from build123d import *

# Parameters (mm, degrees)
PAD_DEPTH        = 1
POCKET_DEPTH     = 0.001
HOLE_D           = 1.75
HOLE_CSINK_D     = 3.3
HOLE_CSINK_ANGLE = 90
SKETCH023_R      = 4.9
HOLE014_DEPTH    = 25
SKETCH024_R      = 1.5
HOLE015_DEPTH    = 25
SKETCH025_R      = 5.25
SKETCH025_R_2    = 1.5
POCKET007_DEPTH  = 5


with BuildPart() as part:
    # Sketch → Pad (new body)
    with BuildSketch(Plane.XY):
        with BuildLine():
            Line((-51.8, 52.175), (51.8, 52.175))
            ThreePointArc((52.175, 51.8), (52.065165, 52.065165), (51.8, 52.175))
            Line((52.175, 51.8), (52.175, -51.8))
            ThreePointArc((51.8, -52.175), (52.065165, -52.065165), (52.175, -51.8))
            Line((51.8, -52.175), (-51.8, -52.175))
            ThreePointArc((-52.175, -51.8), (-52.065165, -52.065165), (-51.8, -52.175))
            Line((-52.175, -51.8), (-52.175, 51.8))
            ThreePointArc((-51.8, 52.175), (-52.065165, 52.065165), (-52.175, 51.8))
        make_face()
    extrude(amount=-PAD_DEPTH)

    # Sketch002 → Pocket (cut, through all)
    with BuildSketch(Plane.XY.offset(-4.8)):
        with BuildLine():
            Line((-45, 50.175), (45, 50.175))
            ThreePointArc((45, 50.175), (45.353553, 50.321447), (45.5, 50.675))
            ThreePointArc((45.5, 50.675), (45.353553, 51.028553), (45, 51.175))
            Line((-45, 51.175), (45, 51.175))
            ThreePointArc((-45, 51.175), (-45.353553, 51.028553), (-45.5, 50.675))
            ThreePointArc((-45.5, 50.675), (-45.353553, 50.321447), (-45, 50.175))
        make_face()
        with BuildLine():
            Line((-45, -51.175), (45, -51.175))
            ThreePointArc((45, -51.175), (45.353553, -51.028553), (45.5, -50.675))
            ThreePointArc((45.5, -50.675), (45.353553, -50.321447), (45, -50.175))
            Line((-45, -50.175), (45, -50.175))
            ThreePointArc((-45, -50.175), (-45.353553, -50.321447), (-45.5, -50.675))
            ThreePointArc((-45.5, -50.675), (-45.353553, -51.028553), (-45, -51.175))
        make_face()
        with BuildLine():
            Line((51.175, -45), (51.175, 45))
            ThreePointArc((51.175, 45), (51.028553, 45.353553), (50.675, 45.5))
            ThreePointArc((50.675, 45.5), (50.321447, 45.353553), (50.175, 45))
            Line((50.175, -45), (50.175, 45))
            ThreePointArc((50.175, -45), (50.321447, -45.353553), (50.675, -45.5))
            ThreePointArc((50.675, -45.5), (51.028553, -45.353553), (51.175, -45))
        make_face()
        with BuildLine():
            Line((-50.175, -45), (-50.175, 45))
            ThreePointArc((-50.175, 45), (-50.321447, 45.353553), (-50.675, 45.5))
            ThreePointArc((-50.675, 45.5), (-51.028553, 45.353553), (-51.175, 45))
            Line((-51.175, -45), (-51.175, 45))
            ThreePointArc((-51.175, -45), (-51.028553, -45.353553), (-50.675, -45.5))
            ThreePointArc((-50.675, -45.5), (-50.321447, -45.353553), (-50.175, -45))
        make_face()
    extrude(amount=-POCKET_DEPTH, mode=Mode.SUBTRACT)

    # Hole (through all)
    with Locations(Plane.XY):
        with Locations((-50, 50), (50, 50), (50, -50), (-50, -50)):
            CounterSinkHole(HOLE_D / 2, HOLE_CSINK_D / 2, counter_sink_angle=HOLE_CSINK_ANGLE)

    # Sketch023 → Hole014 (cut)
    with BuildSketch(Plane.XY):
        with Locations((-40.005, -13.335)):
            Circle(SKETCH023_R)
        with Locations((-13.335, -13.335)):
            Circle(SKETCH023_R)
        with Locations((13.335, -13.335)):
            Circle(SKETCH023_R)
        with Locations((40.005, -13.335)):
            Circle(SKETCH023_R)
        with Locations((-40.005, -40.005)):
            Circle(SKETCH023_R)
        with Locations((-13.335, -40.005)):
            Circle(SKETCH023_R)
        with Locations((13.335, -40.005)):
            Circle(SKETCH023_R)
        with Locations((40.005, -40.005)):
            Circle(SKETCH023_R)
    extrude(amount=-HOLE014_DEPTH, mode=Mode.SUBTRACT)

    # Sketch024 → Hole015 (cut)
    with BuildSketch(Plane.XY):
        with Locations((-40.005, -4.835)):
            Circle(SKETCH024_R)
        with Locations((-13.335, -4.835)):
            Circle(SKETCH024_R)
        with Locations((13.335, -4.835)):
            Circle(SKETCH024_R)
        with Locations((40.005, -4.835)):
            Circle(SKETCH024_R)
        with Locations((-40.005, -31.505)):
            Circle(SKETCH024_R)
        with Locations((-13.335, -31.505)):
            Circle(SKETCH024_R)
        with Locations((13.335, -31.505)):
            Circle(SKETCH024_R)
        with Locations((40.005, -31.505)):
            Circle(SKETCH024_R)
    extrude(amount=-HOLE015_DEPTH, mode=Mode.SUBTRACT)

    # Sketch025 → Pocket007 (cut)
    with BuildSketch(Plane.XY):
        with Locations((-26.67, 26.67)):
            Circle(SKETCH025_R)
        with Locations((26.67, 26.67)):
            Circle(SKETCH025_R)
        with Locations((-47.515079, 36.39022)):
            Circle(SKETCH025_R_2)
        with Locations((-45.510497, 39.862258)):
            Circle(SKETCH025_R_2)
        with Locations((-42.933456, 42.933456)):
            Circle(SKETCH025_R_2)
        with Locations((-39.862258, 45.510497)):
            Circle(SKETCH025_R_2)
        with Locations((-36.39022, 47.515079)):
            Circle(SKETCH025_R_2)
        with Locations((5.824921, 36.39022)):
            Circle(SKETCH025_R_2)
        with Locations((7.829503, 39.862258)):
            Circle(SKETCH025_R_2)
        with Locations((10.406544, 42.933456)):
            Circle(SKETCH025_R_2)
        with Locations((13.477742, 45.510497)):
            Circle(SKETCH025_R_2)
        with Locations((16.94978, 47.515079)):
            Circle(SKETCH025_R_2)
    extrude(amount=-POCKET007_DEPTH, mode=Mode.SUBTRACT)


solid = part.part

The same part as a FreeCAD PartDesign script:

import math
import FreeCAD as App
import Part
import Sketcher
Q = App.Units.Quantity

doc = App.newDocument("Part")
params = doc.addObject("Spreadsheet::Sheet", "Params")
for row, (alias, value) in enumerate([
    ("sketch1_width", "103.6 mm"),
    ("pad1_length", "1 mm"),
    ("sketch2_radius", "0.500001 mm"),
    ("sketch2_width", "90 mm"),
    ("sketch3_diameter", "1.75 mm"),
    ("hole_diameter", "1.75 mm"),
    ("hole_csink_diameter", "3.3 mm"),
    ("sketch4_diameter", "9.8 mm"),
    ("pocket2_length", "25 mm"),
    ("sketch5_diameter", "3 mm"),
    ("pocket3_length", "25 mm"),
    ("sketch6_diameter", "3 mm"),
    ("sketch6_diameter2", "10.5 mm"),
    ("pocket4_length", "5 mm"),
], start=1):
    params.set(f"A{row}", alias)
    params.set(f"B{row}", "=" + value)
    params.setAlias(f"B{row}", alias)

body = doc.addObject("PartDesign::Body", "Body")

sketch1 = body.newObject("Sketcher::SketchObject", "Sketch")
sketch1.AttachmentSupport = (doc.getObject("XY_Plane"), [""])
sketch1.MapMode = "FlatFace"
sketch1.addGeometry([
    Part.LineSegment(App.Vector(51.8, 52.17, 0), App.Vector(-51.8, 52.17, 0)),
    Part.ArcOfCircle(Part.Circle(App.Vector(-51.8, 51.8, 0), App.Vector(0, 0, 1), 0.38), math.radians(90), math.radians(180)),
    Part.LineSegment(App.Vector(-52.17, 51.8, 0), App.Vector(-52.17, -51.8, 0)),
    Part.ArcOfCircle(Part.Circle(App.Vector(-51.8, -51.8, 0), App.Vector(0, 0, 1), 0.38), math.radians(-180), math.radians(-90)),
    Part.LineSegment(App.Vector(-51.8, -52.17, 0), App.Vector(51.8, -52.17, 0)),
    Part.ArcOfCircle(Part.Circle(App.Vector(51.8, -51.8, 0), App.Vector(0, 0, 1), 0.38), math.radians(-90), math.radians(0)),
    Part.LineSegment(App.Vector(52.17, -51.8, 0), App.Vector(52.17, 51.8, 0)),
    Part.ArcOfCircle(Part.Circle(App.Vector(51.8, 51.8, 0), App.Vector(0, 0, 1), 0.38), math.radians(0), math.radians(90)),
], False)
sketch1.addConstraint([
    Sketcher.Constraint("Tangent", 0, 2, 1, 1),
    Sketcher.Constraint("Tangent", 1, 2, 2, 1),
    Sketcher.Constraint("Tangent", 2, 2, 3, 1),
    Sketcher.Constraint("Tangent", 3, 2, 4, 1),
    Sketcher.Constraint("Tangent", 4, 2, 5, 1),
    Sketcher.Constraint("Tangent", 5, 2, 6, 1),
    Sketcher.Constraint("Tangent", 6, 2, 7, 1),
    Sketcher.Constraint("Tangent", 7, 2, 0, 1),
    Sketcher.Constraint("Horizontal", 0),
    Sketcher.Constraint("Vertical", 2),
    Sketcher.Constraint("Horizontal", 4),
    Sketcher.Constraint("Vertical", 6),
    Sketcher.Constraint("Equal", 1, 3),
    Sketcher.Constraint("Equal", 3, 5),
    Sketcher.Constraint("Equal", 5, 7),
    Sketcher.Constraint("Symmetric", 1, 3, 5, 3, -1, 1),
    Sketcher.Constraint("Equal", 4, 2),
    Sketcher.Constraint("DistanceX", 0, 2, 0, 1, Q("103.6 mm")),
    Sketcher.Constraint("Radius", 1, Q("0.375 mm")),
])
sketch1.setExpression("Constraints[17]", "Params.sketch1_width")
pad1 = body.newObject("PartDesign::Pad", "Pad")
pad1.Profile = sketch1
pad1.setExpression("Length", "Params.pad1_length")
pad1.Reversed = True

sketch2 = body.newObject("Sketcher::SketchObject", "Sketch001")
sketch2.AttachmentSupport = (doc.getObject("XY_Plane"), [""])
sketch2.MapMode = "FlatFace"
sketch2.AttachmentOffset = App.Placement(App.Vector(0, 0, -4.8), App.Rotation())
sketch2.addGeometry([
    Part.LineSegment(App.Vector(-45, 50.2, 0), App.Vector(45, 50.2, 0)),
    Part.ArcOfCircle(Part.Circle(App.Vector(45, 50.7, 0), App.Vector(0, 0, 1), 0.5), math.radians(-90), math.radians(0)),
    Part.ArcOfCircle(Part.Circle(App.Vector(45, 50.7, 0), App.Vector(0, 0, 1), 0.5), math.radians(0), math.radians(90)),
    Part.LineSegment(App.Vector(45, 51.2, 0), App.Vector(-45, 51.2, 0)),
    Part.ArcOfCircle(Part.Circle(App.Vector(-45, 50.7, 0), App.Vector(0, 0, 1), 0.5), math.radians(90), math.radians(180)),
    Part.ArcOfCircle(Part.Circle(App.Vector(-45, 50.7, 0), App.Vector(0, 0, 1), 0.5), math.radians(-180), math.radians(-90)),
    Part.LineSegment(App.Vector(-45, -51.2, 0), App.Vector(45, -51.2, 0)),
    Part.ArcOfCircle(Part.Circle(App.Vector(45, -50.7, 0), App.Vector(0, 0, 1), 0.5), math.radians(-90), math.radians(0)),
    Part.ArcOfCircle(Part.Circle(App.Vector(45, -50.7, 0), App.Vector(0, 0, 1), 0.5), math.radians(0), math.radians(90)),
    Part.LineSegment(App.Vector(45, -50.2, 0), App.Vector(-45, -50.2, 0)),
    Part.ArcOfCircle(Part.Circle(App.Vector(-45, -50.7, 0), App.Vector(0, 0, 1), 0.5), math.radians(90), math.radians(180)),
    Part.ArcOfCircle(Part.Circle(App.Vector(-45, -50.7, 0), App.Vector(0, 0, 1), 0.5), math.radians(-180), math.radians(-90)),
    Part.LineSegment(App.Vector(51.2, -45, 0), App.Vector(51.2, 45, 0)),
    Part.ArcOfCircle(Part.Circle(App.Vector(50.7, 45, 0), App.Vector(0, 0, 1), 0.5), math.radians(0), math.radians(90)),
    Part.ArcOfCircle(Part.Circle(App.Vector(50.7, 45, 0), App.Vector(0, 0, 1), 0.5), math.radians(90), math.radians(180)),
    Part.LineSegment(App.Vector(50.2, 45, 0), App.Vector(50.2, -45, 0)),
    Part.ArcOfCircle(Part.Circle(App.Vector(50.7, -45, 0), App.Vector(0, 0, 1), 0.5), math.radians(-180), math.radians(-90)),
    Part.ArcOfCircle(Part.Circle(App.Vector(50.7, -45, 0), App.Vector(0, 0, 1), 0.5), math.radians(-90), math.radians(0)),
    Part.LineSegment(App.Vector(-50.2, -45, 0), App.Vector(-50.2, 45, 0)),
    Part.ArcOfCircle(Part.Circle(App.Vector(-50.7, 45, 0), App.Vector(0, 0, 1), 0.5), math.radians(0), math.radians(90)),
    Part.ArcOfCircle(Part.Circle(App.Vector(-50.7, 45, 0), App.Vector(0, 0, 1), 0.5), math.radians(90), math.radians(180)),
    Part.LineSegment(App.Vector(-51.2, 45, 0), App.Vector(-51.2, -45, 0)),
    Part.ArcOfCircle(Part.Circle(App.Vector(-50.7, -45, 0), App.Vector(0, 0, 1), 0.5), math.radians(-180), math.radians(-90)),
    Part.ArcOfCircle(Part.Circle(App.Vector(-50.7, -45, 0), App.Vector(0, 0, 1), 0.5), math.radians(-90), math.radians(0)),
], False)
sketch2.addConstraint([
    Sketcher.Constraint("Coincident", 0, 2, 1, 1),
    Sketcher.Constraint("Coincident", 1, 2, 2, 1),
    Sketcher.Constraint("Coincident", 2, 2, 3, 1),
    Sketcher.Constraint("Coincident", 3, 2, 4, 1),
    Sketcher.Constraint("Coincident", 4, 2, 5, 1),
    Sketcher.Constraint("Coincident", 5, 2, 0, 1),
    Sketcher.Constraint("Coincident", 6, 2, 7, 1),
    Sketcher.Constraint("Coincident", 7, 2, 8, 1),
    Sketcher.Constraint("Coincident", 8, 2, 9, 1),
    Sketcher.Constraint("Coincident", 9, 2, 10, 1),
    Sketcher.Constraint("Coincident", 10, 2, 11, 1),
    Sketcher.Constraint("Coincident", 11, 2, 6, 1),
    Sketcher.Constraint("Coincident", 12, 2, 13, 1),
    Sketcher.Constraint("Coincident", 13, 2, 14, 1),
    Sketcher.Constraint("Coincident", 14, 2, 15, 1),
    Sketcher.Constraint("Coincident", 15, 2, 16, 1),
    Sketcher.Constraint("Coincident", 16, 2, 17, 1),
    Sketcher.Constraint("Coincident", 17, 2, 12, 1),
    Sketcher.Constraint("Coincident", 18, 2, 19, 1),
    Sketcher.Constraint("Coincident", 19, 2, 20, 1),
    Sketcher.Constraint("Coincident", 20, 2, 21, 1),
    Sketcher.Constraint("Coincident", 21, 2, 22, 1),
    Sketcher.Constraint("Coincident", 22, 2, 23, 1),
    Sketcher.Constraint("Coincident", 23, 2, 18, 1),
    Sketcher.Constraint("Horizontal", 0),
    Sketcher.Constraint("Horizontal", 3),
    Sketcher.Constraint("Horizontal", 6),
    Sketcher.Constraint("Horizontal", 9),
    Sketcher.Constraint("Vertical", 12),
    Sketcher.Constraint("Vertical", 15),
    Sketcher.Constraint("Vertical", 18),
    Sketcher.Constraint("Vertical", 21),
    Sketcher.Constraint("Coincident", 2, 3, 1, 3),
    Sketcher.Constraint("Coincident", 5, 3, 4, 3),
    Sketcher.Constraint("Coincident", 8, 3, 7, 3),
    Sketcher.Constraint("Coincident", 11, 3, 10, 3),
    Sketcher.Constraint("Coincident", 14, 3, 13, 3),
    Sketcher.Constraint("Coincident", 17, 3, 16, 3),
    Sketcher.Constraint("Coincident", 20, 3, 19, 3),
    Sketcher.Constraint("Coincident", 23, 3, 22, 3),
    Sketcher.Constraint("Equal", 5, 7),
    Sketcher.Constraint("Equal", 11, 13),
    Sketcher.Constraint("Equal", 17, 19),
    Sketcher.Constraint("Symmetric", 4, 3, 7, 3, -1, 1),
    Sketcher.Constraint("Symmetric", 16, 3, 19, 3, -1, 1),
    Sketcher.Constraint("Symmetric", 1, 2, 10, 2, -1, 1),
    Sketcher.Constraint("Symmetric", 13, 2, 22, 2, -1, 1),
    Sketcher.Constraint("Symmetric", 1, 2, 4, 2, -2),
    Sketcher.Constraint("Symmetric", 13, 2, 19, 2, -2),
    Sketcher.Constraint("Horizontal", 5, 3, 1, 2),
    Sketcher.Constraint("Horizontal", 11, 3, 7, 2),
    Sketcher.Constraint("Horizontal", 20, 3, 12, 2),
    Sketcher.Constraint("Horizontal", 12, 2, 14, 2),
    Sketcher.Constraint("Horizontal", 23, 3, 15, 2),
    Sketcher.Constraint("Horizontal", 15, 2, 17, 2),
    Sketcher.Constraint("Horizontal", 14, 2, 18, 2),
    Sketcher.Constraint("Horizontal", 18, 2, 20, 2),
    Sketcher.Constraint("Horizontal", 17, 2, 21, 2),
    Sketcher.Constraint("Horizontal", 21, 2, 23, 2),
    Sketcher.Constraint("Vertical", 8, 3, 0, 2),
    Sketcher.Constraint("Vertical", 0, 2, 2, 2),
    Sketcher.Constraint("Vertical", 11, 3, 3, 2),
    Sketcher.Constraint("Vertical", 3, 2, 5, 2),
    Sketcher.Constraint("Vertical", 2, 2, 6, 2),
    Sketcher.Constraint("Vertical", 6, 2, 8, 2),
    Sketcher.Constraint("Vertical", 5, 2, 9, 2),
    Sketcher.Constraint("Vertical", 9, 2, 11, 2),
    Sketcher.Constraint("Vertical", 17, 3, 13, 2),
    Sketcher.Constraint("Vertical", 13, 2, 16, 2),
    Sketcher.Constraint("Equal", 9, 12),
    Sketcher.Constraint("Radius", 1, Q("0.500001 mm")),
    Sketcher.Constraint("DistanceX", 0, 1, 0, 2, Q("90 mm")),
    Sketcher.Constraint("DistanceY", 7, 3, 1, 3, Q("101.35 mm")),
    Sketcher.Constraint("DistanceX", -1, 1, 13, 3, Q("50.674999 mm")),
])
sketch2.setExpression("Constraints[70]", "Params.sketch2_radius")
sketch2.setExpression("Constraints[71]", "Params.sketch2_width")
pocket1 = body.newObject("PartDesign::Pocket", "Pocket")
pocket1.Profile = sketch2
pocket1.Type = "ThroughAll"

sketch3 = body.newObject("Sketcher::SketchObject", "Sketch002")
sketch3.AttachmentSupport = (doc.getObject("XY_Plane"), [""])
sketch3.MapMode = "FlatFace"
sketch3.addGeometry([
    Part.Circle(App.Vector(-50, 50, 0), App.Vector(0, 0, 1), 0.9),
    Part.Circle(App.Vector(50, 50, 0), App.Vector(0, 0, 1), 0.9),
    Part.Circle(App.Vector(50, -50, 0), App.Vector(0, 0, 1), 0.9),
    Part.Circle(App.Vector(-50, -50, 0), App.Vector(0, 0, 1), 0.9),
], False)
sketch3.addConstraint([
    Sketcher.Constraint("Equal", 0, 1),
    Sketcher.Constraint("Equal", 1, 2),
    Sketcher.Constraint("Equal", 2, 3),
    Sketcher.Constraint("Symmetric", 0, 3, 2, 3, -1, 1),
    Sketcher.Constraint("Symmetric", 1, 3, 3, 3, -1, 1),
    Sketcher.Constraint("Symmetric", 0, 3, 1, 3, -2),
    Sketcher.Constraint("Diameter", 0, Q("1.75 mm")),
    Sketcher.Constraint("DistanceX", 0, 3, -1, 1, Q("50 mm")),
    Sketcher.Constraint("DistanceY", -1, 1, 0, 3, Q("50 mm")),
])
sketch3.setExpression("Constraints[6]", "Params.sketch3_diameter")
doc.recompute()
hole = body.newObject("PartDesign::Hole", "Hole")
hole.Profile = sketch3
hole.ThreadType = "None"
hole.setExpression("Diameter", "Params.hole_diameter")
hole.DepthType = "ThroughAll"
hole.HoleCutType = "Countersink"
hole.setExpression("HoleCutDiameter", "Params.hole_csink_diameter")
hole.HoleCutCountersinkAngle = 90

sketch4 = body.newObject("Sketcher::SketchObject", "Sketch003")
sketch4.AttachmentSupport = (doc.getObject("XY_Plane"), [""])
sketch4.MapMode = "FlatFace"
sketch4.addGeometry([
    Part.Circle(App.Vector(-40, -13.3, 0), App.Vector(0, 0, 1), 4.9),
    Part.Circle(App.Vector(-13.3, -13.3, 0), App.Vector(0, 0, 1), 4.9),
    Part.Circle(App.Vector(13.3, -13.3, 0), App.Vector(0, 0, 1), 4.9),
    Part.Circle(App.Vector(40, -13.3, 0), App.Vector(0, 0, 1), 4.9),
    Part.Circle(App.Vector(-40, -40, 0), App.Vector(0, 0, 1), 4.9),
    Part.Circle(App.Vector(-13.3, -40, 0), App.Vector(0, 0, 1), 4.9),
    Part.Circle(App.Vector(13.3, -40, 0), App.Vector(0, 0, 1), 4.9),
    Part.Circle(App.Vector(40, -40, 0), App.Vector(0, 0, 1), 4.9),
], False)
sketch4.addConstraint([
    Sketcher.Constraint("Equal", 0, 1),
    Sketcher.Constraint("Equal", 1, 2),
    Sketcher.Constraint("Equal", 2, 3),
    Sketcher.Constraint("Equal", 3, 4),
    Sketcher.Constraint("Equal", 4, 5),
    Sketcher.Constraint("Equal", 5, 6),
    Sketcher.Constraint("Equal", 6, 7),
    Sketcher.Constraint("Symmetric", 1, 3, 2, 3, -2),
    Sketcher.Constraint("Symmetric", 0, 3, 3, 3, -2),
    Sketcher.Constraint("Symmetric", 5, 3, 6, 3, -2),
    Sketcher.Constraint("Symmetric", 4, 3, 7, 3, -2),
    Sketcher.Constraint("Horizontal", 0, 3, 1, 3),
    Sketcher.Constraint("Horizontal", 4, 3, 5, 3),
    Sketcher.Constraint("Vertical", 0, 3, 4, 3),
    Sketcher.Constraint("Vertical", 1, 3, 5, 3),
    Sketcher.Constraint("Diameter", 0, Q("9.8 mm")),
    Sketcher.Constraint("DistanceX", 0, 3, 1, 3, Q("26.67 mm")),
    Sketcher.Constraint("DistanceX", 1, 3, 2, 3, Q("26.67 mm")),
    Sketcher.Constraint("DistanceY", 4, 3, 0, 3, Q("26.67 mm")),
    Sketcher.Constraint("DistanceY", 0, 3, -1, 1, Q("13.335 mm")),
])
sketch4.setExpression("Constraints[15]", "Params.sketch4_diameter")
pocket2 = body.newObject("PartDesign::Pocket", "Pocket001")
pocket2.Profile = sketch4
pocket2.setExpression("Length", "Params.pocket2_length")

sketch5 = body.newObject("Sketcher::SketchObject", "Sketch004")
sketch5.AttachmentSupport = (doc.getObject("XY_Plane"), [""])
sketch5.MapMode = "FlatFace"
sketch5.addGeometry([
    Part.Circle(App.Vector(-40, -4.8, 0), App.Vector(0, 0, 1), 1.5),
    Part.Circle(App.Vector(-13.3, -4.8, 0), App.Vector(0, 0, 1), 1.5),
    Part.Circle(App.Vector(13.3, -4.8, 0), App.Vector(0, 0, 1), 1.5),
    Part.Circle(App.Vector(40, -4.8, 0), App.Vector(0, 0, 1), 1.5),
    Part.Circle(App.Vector(-40, -31.5, 0), App.Vector(0, 0, 1), 1.5),
    Part.Circle(App.Vector(-13.3, -31.5, 0), App.Vector(0, 0, 1), 1.5),
    Part.Circle(App.Vector(13.3, -31.5, 0), App.Vector(0, 0, 1), 1.5),
    Part.Circle(App.Vector(40, -31.5, 0), App.Vector(0, 0, 1), 1.5),
], False)
sketch5.addConstraint([
    Sketcher.Constraint("Equal", 0, 1),
    Sketcher.Constraint("Equal", 1, 2),
    Sketcher.Constraint("Equal", 2, 3),
    Sketcher.Constraint("Equal", 3, 4),
    Sketcher.Constraint("Equal", 4, 5),
    Sketcher.Constraint("Equal", 5, 6),
    Sketcher.Constraint("Equal", 6, 7),
    Sketcher.Constraint("Symmetric", 1, 3, 2, 3, -2),
    Sketcher.Constraint("Symmetric", 0, 3, 3, 3, -2),
    Sketcher.Constraint("Symmetric", 5, 3, 6, 3, -2),
    Sketcher.Constraint("Symmetric", 4, 3, 7, 3, -2),
    Sketcher.Constraint("Horizontal", 0, 3, 1, 3),
    Sketcher.Constraint("Horizontal", 4, 3, 5, 3),
    Sketcher.Constraint("Vertical", 0, 3, 4, 3),
    Sketcher.Constraint("Vertical", 1, 3, 5, 3),
    Sketcher.Constraint("Diameter", 0, Q("3 mm")),
    Sketcher.Constraint("DistanceX", 0, 3, 1, 3, Q("26.67 mm")),
    Sketcher.Constraint("DistanceX", 1, 3, 2, 3, Q("26.67 mm")),
    Sketcher.Constraint("DistanceY", 4, 3, 0, 3, Q("26.67 mm")),
    Sketcher.Constraint("DistanceY", 0, 3, -1, 1, Q("4.835 mm")),
])
sketch5.setExpression("Constraints[15]", "Params.sketch5_diameter")
pocket3 = body.newObject("PartDesign::Pocket", "Pocket002")
pocket3.Profile = sketch5
pocket3.setExpression("Length", "Params.pocket3_length")

sketch6 = body.newObject("Sketcher::SketchObject", "Sketch005")
sketch6.AttachmentSupport = (doc.getObject("XY_Plane"), [""])
sketch6.MapMode = "FlatFace"
sketch6.addGeometry([
    Part.Circle(App.Vector(-26.7, 26.7, 0), App.Vector(0, 0, 1), 5.2),
    Part.Circle(App.Vector(26.7, 26.7, 0), App.Vector(0, 0, 1), 5.2),
    Part.Circle(App.Vector(-47.5, 36.4, 0), App.Vector(0, 0, 1), 1.5),
    Part.Circle(App.Vector(-45.5, 39.9, 0), App.Vector(0, 0, 1), 1.5),
    Part.Circle(App.Vector(-42.9, 42.9, 0), App.Vector(0, 0, 1), 1.5),
    Part.Circle(App.Vector(-39.9, 45.5, 0), App.Vector(0, 0, 1), 1.5),
    Part.Circle(App.Vector(-36.4, 47.5, 0), App.Vector(0, 0, 1), 1.5),
    Part.Circle(App.Vector(5.8, 36.4, 0), App.Vector(0, 0, 1), 1.5),
    Part.Circle(App.Vector(7.8, 39.9, 0), App.Vector(0, 0, 1), 1.5),
    Part.Circle(App.Vector(10.4, 42.9, 0), App.Vector(0, 0, 1), 1.5),
    Part.Circle(App.Vector(13.5, 45.5, 0), App.Vector(0, 0, 1), 1.5),
    Part.Circle(App.Vector(16.9, 47.5, 0), App.Vector(0, 0, 1), 1.5),
], False)
sketch6.addConstraint([
    Sketcher.Constraint("Equal", 0, 1),
    Sketcher.Constraint("Equal", 2, 3),
    Sketcher.Constraint("Equal", 3, 4),
    Sketcher.Constraint("Equal", 4, 5),
    Sketcher.Constraint("Equal", 5, 6),
    Sketcher.Constraint("Equal", 6, 7),
    Sketcher.Constraint("Equal", 7, 8),
    Sketcher.Constraint("Equal", 8, 9),
    Sketcher.Constraint("Equal", 9, 10),
    Sketcher.Constraint("Equal", 10, 11),
    Sketcher.Constraint("Symmetric", 0, 3, 1, 3, -2),
    Sketcher.Constraint("Horizontal", 2, 3, 7, 3),
    Sketcher.Constraint("Horizontal", 3, 3, 8, 3),
    Sketcher.Constraint("Horizontal", 4, 3, 9, 3),
    Sketcher.Constraint("Horizontal", 5, 3, 10, 3),
    Sketcher.Constraint("Horizontal", 6, 3, 11, 3),
    Sketcher.Constraint("Diameter", 2, Q("3 mm")),
    Sketcher.Constraint("Diameter", 0, Q("10.5 mm")),
    Sketcher.Constraint("DistanceX", 0, 3, -1, 1, Q("26.67 mm")),
    Sketcher.Constraint("DistanceY", -1, 1, 0, 3, Q("26.67 mm")),
    Sketcher.Constraint("DistanceY", 3, 3, 4, 3, Q("3.071198 mm")),
    Sketcher.Constraint("DistanceX", 4, 3, 5, 3, Q("3.071198 mm")),
    Sketcher.Constraint("DistanceX", 2, 3, -1, 1, Q("47.515079 mm")),
    Sketcher.Constraint("DistanceY", -1, 1, 2, 3, Q("36.39022 mm")),
    Sketcher.Constraint("DistanceX", 6, 3, -1, 1, Q("36.39022 mm")),
    Sketcher.Constraint("DistanceY", -1, 1, 6, 3, Q("47.515079 mm")),
    Sketcher.Constraint("DistanceX", -1, 1, 7, 3, Q("5.824921 mm")),
    Sketcher.Constraint("DistanceX", -1, 1, 10, 3, Q("13.477742 mm")),
    Sketcher.Constraint("DistanceX", -1, 1, 11, 3, Q("16.94978 mm")),
    Sketcher.Constraint("DistanceX", 2, 3, 3, 3, Q("2.004582 mm")),
    Sketcher.Constraint("DistanceX", 3, 3, 4, 3, Q("2.577041 mm")),
    Sketcher.Constraint("DistanceY", 4, 3, 5, 3, Q("2.577041 mm")),
    Sketcher.Constraint("DistanceY", 5, 3, 6, 3, Q("2.004582 mm")),
    Sketcher.Constraint("DistanceX", 5, 3, 8, 3, Q("47.691761 mm")),
    Sketcher.Constraint("DistanceX", 8, 3, 9, 3, Q("2.577041 mm")),
])
sketch6.setExpression("Constraints[16]", "Params.sketch6_diameter")
sketch6.setExpression("Constraints[17]", "Params.sketch6_diameter2")
pocket4 = body.newObject("PartDesign::Pocket", "Pocket003")
pocket4.Profile = sketch6
pocket4.setExpression("Length", "Params.pocket4_length")

doc.recompute()
